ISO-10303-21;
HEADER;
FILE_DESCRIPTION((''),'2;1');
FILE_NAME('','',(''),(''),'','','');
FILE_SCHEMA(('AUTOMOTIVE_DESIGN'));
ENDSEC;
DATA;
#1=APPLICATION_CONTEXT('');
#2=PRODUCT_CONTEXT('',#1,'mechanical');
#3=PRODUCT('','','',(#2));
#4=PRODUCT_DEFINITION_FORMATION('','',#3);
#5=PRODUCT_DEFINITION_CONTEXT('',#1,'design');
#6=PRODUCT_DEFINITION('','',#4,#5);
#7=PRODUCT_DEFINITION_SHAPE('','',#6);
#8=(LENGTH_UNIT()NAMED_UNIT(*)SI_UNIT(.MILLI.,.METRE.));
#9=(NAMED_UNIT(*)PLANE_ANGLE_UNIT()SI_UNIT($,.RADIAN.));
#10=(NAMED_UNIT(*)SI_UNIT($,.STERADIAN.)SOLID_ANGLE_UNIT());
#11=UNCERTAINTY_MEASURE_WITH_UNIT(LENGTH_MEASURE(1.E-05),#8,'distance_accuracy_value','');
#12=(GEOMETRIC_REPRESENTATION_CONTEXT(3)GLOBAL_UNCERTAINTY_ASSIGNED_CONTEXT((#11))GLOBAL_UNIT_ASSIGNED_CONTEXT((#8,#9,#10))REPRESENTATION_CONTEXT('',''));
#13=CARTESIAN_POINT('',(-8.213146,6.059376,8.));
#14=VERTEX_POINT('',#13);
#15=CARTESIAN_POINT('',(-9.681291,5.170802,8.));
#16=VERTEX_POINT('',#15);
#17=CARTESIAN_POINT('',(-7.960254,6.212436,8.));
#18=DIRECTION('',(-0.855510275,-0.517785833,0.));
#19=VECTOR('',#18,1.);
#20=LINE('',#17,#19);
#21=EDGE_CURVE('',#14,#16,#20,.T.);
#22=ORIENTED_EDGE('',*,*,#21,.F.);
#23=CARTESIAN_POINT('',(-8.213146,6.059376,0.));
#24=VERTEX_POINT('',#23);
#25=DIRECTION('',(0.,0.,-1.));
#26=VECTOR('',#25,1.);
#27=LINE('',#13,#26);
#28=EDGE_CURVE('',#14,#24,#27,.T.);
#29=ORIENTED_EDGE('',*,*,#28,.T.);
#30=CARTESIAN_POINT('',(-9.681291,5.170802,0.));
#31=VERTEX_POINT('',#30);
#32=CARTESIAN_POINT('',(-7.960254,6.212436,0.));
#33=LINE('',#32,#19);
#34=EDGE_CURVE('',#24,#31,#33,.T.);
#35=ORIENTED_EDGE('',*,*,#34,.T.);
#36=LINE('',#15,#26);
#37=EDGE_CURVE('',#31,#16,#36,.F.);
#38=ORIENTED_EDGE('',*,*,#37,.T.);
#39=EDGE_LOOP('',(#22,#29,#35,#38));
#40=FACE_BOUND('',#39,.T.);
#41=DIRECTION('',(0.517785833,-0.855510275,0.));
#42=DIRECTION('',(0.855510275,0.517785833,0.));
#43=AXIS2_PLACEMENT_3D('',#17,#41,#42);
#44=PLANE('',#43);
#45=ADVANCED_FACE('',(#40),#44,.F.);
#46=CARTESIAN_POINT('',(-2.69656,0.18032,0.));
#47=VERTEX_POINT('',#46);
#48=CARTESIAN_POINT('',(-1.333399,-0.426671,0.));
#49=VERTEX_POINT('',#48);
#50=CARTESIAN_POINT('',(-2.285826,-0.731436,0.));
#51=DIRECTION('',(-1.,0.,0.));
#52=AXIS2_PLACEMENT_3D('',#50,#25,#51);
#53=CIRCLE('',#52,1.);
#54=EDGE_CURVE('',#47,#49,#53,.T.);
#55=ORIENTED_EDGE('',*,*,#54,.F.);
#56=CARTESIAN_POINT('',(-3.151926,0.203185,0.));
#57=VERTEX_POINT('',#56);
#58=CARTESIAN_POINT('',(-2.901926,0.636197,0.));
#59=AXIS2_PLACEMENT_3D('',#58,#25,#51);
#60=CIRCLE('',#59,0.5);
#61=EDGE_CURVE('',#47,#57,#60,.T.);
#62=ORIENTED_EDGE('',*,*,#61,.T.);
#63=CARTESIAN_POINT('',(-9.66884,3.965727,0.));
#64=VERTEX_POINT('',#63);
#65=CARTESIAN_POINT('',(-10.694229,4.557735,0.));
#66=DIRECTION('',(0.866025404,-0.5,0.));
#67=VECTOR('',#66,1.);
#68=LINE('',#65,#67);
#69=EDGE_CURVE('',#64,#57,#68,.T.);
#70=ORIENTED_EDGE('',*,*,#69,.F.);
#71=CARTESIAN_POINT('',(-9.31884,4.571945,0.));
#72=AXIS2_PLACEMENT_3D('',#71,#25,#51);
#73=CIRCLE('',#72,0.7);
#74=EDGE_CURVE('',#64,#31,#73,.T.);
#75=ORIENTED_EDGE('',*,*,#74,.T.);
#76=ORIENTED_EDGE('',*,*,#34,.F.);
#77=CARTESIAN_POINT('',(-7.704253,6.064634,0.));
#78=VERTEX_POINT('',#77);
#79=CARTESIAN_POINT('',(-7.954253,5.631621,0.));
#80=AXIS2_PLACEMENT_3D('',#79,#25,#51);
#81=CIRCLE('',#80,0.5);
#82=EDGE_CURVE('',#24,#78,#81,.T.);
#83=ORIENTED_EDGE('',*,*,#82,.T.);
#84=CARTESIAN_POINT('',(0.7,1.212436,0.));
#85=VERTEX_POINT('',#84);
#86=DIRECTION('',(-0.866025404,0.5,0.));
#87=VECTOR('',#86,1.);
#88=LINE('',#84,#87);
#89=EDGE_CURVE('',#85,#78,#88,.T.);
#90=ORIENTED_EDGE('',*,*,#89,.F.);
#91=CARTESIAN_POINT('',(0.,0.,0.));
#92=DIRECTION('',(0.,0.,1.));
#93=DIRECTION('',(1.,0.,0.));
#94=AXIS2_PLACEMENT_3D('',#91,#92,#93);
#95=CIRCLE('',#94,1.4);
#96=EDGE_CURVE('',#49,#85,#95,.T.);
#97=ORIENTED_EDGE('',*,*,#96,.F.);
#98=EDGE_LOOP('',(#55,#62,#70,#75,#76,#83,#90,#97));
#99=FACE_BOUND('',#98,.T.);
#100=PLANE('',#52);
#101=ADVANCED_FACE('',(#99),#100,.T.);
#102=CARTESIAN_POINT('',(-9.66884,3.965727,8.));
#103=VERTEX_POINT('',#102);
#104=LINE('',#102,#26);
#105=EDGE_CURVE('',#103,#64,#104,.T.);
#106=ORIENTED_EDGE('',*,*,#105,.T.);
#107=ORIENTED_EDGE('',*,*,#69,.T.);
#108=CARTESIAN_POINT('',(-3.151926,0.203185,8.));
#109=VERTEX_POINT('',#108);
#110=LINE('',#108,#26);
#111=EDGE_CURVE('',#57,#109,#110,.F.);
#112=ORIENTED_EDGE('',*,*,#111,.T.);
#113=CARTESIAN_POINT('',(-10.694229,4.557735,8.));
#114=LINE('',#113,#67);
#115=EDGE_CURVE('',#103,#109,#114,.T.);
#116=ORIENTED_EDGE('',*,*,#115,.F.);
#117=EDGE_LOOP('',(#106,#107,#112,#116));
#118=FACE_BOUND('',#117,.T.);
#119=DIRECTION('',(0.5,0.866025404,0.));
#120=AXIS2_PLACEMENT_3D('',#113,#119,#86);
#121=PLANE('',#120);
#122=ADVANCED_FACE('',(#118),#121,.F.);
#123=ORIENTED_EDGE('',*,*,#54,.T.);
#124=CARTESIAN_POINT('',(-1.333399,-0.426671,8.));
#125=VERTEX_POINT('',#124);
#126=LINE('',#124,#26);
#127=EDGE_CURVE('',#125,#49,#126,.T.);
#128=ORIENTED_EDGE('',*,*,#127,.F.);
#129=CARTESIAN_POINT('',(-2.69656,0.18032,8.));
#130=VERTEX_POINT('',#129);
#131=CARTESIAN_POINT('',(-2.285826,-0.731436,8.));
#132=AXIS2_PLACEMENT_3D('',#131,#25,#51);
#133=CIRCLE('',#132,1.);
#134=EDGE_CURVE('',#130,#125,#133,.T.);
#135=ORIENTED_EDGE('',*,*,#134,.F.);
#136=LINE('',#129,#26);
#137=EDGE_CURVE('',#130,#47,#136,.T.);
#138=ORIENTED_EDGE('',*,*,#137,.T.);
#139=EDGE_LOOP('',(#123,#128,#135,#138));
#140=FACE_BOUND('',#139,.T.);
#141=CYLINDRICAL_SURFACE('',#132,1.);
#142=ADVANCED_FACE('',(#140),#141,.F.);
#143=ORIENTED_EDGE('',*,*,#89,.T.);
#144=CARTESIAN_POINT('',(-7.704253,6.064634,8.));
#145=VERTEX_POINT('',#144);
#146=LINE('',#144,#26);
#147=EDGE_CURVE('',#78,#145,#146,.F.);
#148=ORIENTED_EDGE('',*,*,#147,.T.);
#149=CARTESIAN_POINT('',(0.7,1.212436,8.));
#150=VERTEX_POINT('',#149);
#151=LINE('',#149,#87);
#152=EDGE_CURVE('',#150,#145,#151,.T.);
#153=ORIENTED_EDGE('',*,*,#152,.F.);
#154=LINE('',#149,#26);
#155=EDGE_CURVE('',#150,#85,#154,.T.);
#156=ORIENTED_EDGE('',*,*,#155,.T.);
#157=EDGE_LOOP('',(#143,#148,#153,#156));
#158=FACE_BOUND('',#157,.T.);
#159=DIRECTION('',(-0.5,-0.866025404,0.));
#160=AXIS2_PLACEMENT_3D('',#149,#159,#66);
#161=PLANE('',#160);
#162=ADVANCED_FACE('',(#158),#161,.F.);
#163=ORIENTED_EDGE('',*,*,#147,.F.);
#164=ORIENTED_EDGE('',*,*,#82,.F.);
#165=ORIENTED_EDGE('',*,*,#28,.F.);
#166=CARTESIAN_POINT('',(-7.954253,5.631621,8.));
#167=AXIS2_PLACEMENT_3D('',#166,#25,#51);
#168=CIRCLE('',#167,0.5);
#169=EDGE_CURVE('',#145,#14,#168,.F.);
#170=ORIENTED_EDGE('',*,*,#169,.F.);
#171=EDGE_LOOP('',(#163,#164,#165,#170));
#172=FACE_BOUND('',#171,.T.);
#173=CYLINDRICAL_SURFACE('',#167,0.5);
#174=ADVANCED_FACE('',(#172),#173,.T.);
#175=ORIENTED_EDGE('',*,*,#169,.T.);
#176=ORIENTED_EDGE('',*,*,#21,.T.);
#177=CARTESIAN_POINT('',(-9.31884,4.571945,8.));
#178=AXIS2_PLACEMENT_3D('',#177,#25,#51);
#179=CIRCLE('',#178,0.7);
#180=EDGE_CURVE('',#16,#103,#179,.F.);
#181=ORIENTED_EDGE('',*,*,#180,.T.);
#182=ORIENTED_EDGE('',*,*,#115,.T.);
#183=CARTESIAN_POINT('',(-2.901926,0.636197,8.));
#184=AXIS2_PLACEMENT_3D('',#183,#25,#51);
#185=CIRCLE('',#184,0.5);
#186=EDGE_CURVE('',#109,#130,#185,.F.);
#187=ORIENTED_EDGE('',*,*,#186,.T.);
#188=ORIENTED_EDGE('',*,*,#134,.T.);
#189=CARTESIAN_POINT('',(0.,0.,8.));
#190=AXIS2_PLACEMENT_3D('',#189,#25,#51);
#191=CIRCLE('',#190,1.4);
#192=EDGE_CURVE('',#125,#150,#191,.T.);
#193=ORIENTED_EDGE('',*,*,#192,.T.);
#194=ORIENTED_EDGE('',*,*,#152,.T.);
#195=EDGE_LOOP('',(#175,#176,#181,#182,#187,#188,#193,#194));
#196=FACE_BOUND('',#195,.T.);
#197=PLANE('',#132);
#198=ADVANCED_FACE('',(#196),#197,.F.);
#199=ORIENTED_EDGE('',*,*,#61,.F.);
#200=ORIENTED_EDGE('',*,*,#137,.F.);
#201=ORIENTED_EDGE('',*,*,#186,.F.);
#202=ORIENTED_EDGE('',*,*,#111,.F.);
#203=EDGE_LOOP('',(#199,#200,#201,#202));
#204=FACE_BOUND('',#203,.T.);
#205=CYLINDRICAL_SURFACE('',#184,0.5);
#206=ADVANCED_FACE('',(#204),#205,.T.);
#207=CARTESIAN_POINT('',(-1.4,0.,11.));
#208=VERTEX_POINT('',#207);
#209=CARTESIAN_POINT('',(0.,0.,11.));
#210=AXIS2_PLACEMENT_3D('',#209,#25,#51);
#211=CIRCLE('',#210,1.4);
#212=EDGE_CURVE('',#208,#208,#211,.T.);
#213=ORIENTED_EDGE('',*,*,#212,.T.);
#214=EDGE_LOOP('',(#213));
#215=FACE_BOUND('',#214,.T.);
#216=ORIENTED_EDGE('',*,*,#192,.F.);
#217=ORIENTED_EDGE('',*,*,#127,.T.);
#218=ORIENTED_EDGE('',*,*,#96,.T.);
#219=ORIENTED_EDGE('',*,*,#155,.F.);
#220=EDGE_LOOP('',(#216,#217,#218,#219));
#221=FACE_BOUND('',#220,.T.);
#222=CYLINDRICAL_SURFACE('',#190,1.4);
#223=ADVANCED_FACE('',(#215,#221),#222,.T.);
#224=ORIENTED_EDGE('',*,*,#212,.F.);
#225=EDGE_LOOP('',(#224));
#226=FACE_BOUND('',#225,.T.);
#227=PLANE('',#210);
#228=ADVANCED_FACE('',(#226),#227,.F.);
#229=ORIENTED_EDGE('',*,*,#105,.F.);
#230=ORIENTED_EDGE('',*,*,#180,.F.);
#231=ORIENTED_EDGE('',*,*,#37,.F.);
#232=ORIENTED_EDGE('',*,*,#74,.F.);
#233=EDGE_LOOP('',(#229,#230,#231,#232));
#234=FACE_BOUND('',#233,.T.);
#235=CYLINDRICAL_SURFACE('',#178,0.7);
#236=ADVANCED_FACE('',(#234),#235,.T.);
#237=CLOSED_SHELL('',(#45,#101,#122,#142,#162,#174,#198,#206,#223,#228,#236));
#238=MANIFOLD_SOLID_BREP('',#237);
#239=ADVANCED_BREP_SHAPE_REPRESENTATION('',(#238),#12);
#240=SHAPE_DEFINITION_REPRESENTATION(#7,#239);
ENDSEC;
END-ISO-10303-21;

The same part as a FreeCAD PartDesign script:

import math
import FreeCAD as App
import Part
import Sketcher
Q = App.Units.Quantity


def edges_at(feature, points):
    """Names of the edges that pass closest to the given points."""
    edges = feature.Shape.Edges
    near = lambda p: min(range(len(edges)), key=lambda i: edges[i].distToShape(Part.Vertex(*p))[0])
    return sorted({f"Edge{near(p) + 1}" for p in points})

doc = App.newDocument("Part")
body = doc.addObject("PartDesign::Body", "Body")

# Sketch on XY plane
sketch1 = body.newObject("Sketcher::SketchObject", "Sketch")
sketch1.AttachmentSupport = (doc.getObject("XY_Plane"), [""])
sketch1.MapMode = "FlatFace"
sketch1.addGeometry([
    Part.LineSegment(App.Vector(0.7, 1.212436, 0), App.Vector(-7.960254, 6.212436, 0)),  # 0
    Part.LineSegment(App.Vector(-7.960254, 6.212436, 0), App.Vector(-10.694229, 4.557735, 0)),  # 1
    Part.LineSegment(App.Vector(-10.694229, 4.557735, 0), App.Vector(-2.9, 0.057735, 0)),  # 2
    Part.ArcOfCircle(Part.Circle(App.Vector(-2.285826, -0.731436, 0), App.Vector(0, 0, 1), 1), math.radians(17.744022), math.radians(127.891908)),  # 3
    Part.ArcOfCircle(Part.Circle(App.Vector(0, 0, 0), App.Vector(0, 0, 1), 1.4), math.radians(-162.255978), math.radians(60)),  # 4
], False)
sketch1.addConstraint([
    Sketcher.Constraint("Coincident", 0, 2, 1, 1),
    Sketcher.Constraint("Coincident", 1, 2, 2, 1),
    Sketcher.Constraint("Coincident", 2, 2, 3, 2),
    Sketcher.Constraint("Tangent", 3, 1, 4, 1),
    Sketcher.Constraint("Tangent", 4, 2, 0, 1),
    Sketcher.Constraint("Coincident", 4, 3, -1, 1),
    Sketcher.Constraint("Parallel", 0, 2),
    Sketcher.Constraint("Radius", 3, Q("1 mm")),
    Sketcher.Constraint("Radius", 4, Q("1.4 mm")),
    Sketcher.Constraint("Angle", 0, Q("150 deg")),
    Sketcher.Constraint("Distance", 0, Q("10 mm")),
    Sketcher.Constraint("Distance", 2, Q("9 mm")),
    Sketcher.Constraint("DistanceX", 2, 2, -1, 1, Q("2.9 mm")),
    Sketcher.Constraint("DistanceX", 3, 1, -1, 1, Q("1.333399 mm")),
])
pad1 = body.newObject("PartDesign::Pad", "Pad")
pad1.Profile = sketch1
pad1.Length = 8
doc.recompute()

fillet = body.newObject("PartDesign::Fillet", "Fillet")
fillet.Base = (pad1, edges_at(pad1, [(-7.96, 6.212, 4), (-2.9, 0.058, 4)]))
fillet.Radius = 0.5
doc.recompute()

fillet2 = body.newObject("PartDesign::Fillet", "Fillet001")
fillet2.Base = (fillet, edges_at(fillet, [(-10.694, 4.558, 4)]))
fillet2.Radius = 0.7

# Sketch on XY plane
sketch2 = body.newObject("Sketcher::SketchObject", "Sketch001")
sketch2.AttachmentSupport = (doc.getObject("XY_Plane"), [""])
sketch2.MapMode = "FlatFace"
sketch2.AttachmentOffset = App.Placement(App.Vector(0, 0, 8), App.Rotation())
sketch2.addGeometry(Part.Circle(App.Vector(0, 0, 0), App.Vector(0, 0, 1), 1.4), False)
sketch2.addConstraint([
    Sketcher.Constraint("Coincident", 0, 3, -1, 1),
    Sketcher.Constraint("Diameter", 0, Q("2.8 mm")),
])
pad2 = body.newObject("PartDesign::Pad", "Pad001")
pad2.Profile = sketch2
pad2.Length = 3

doc.recompute()
